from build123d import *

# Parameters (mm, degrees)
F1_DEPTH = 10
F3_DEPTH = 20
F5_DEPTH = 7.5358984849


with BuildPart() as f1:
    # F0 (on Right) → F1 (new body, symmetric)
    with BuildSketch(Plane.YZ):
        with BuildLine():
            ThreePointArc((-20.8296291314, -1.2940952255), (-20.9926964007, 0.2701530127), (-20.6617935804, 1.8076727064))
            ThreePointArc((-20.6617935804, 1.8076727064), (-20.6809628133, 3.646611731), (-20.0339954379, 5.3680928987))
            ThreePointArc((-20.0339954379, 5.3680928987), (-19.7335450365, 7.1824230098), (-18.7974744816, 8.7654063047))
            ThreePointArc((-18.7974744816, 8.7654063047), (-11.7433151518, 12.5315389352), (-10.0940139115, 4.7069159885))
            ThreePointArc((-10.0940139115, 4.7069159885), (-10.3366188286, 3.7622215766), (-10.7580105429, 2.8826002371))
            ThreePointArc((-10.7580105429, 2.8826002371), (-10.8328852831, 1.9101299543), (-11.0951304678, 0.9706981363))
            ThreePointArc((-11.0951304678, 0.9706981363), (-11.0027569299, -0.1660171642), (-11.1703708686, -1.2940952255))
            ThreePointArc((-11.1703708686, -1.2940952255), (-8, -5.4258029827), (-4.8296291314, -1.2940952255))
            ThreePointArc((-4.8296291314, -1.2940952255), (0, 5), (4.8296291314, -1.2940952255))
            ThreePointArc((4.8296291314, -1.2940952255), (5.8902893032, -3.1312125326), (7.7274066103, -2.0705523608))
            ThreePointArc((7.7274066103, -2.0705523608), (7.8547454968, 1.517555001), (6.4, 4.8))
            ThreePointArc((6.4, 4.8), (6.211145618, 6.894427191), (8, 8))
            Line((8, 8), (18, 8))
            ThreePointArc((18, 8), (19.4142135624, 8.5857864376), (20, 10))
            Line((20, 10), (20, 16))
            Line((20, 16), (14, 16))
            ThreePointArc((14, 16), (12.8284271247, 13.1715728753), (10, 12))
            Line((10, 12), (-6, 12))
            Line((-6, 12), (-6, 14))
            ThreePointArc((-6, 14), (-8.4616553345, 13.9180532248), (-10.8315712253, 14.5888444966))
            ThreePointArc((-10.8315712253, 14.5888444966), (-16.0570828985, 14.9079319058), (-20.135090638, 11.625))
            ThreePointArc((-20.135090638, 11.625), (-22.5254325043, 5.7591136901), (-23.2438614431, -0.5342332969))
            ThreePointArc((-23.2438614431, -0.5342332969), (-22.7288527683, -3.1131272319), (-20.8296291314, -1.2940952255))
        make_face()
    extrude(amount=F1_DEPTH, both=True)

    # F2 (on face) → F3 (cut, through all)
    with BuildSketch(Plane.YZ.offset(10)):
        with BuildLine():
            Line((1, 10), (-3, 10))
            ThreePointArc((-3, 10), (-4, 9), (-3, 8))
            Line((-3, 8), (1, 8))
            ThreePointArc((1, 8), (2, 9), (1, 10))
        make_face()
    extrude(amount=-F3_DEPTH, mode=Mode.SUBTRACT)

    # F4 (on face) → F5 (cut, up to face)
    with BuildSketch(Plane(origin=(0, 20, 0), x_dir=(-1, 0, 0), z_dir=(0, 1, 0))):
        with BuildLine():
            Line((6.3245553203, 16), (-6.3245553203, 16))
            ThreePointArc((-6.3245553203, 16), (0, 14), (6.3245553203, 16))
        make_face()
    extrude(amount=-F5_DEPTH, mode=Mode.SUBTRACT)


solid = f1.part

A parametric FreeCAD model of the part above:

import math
import FreeCAD as App
import Part
import Sketcher
from FreeCAD import Vector
Q = App.Units.Quantity

doc = App.newDocument("Part")
body = doc.addObject("PartDesign::Body", "Body")

# Sketch on YZ plane
sketch1 = body.newObject("Sketcher::SketchObject", "Sketch")
sketch1.AttachmentSupport = (doc.getObject("YZ_Plane"), [""])
sketch1.MapMode = "FlatFace"
sketch1.addGeometry([
    Part.ArcOfCircle(Part.Circle(Vector(-16, 0, 0), Vector(0, 0, 1), 5), math.radians(158.805533), math.radians(195)),  # 0
    Part.ArcOfCircle(Part.Circle(Vector(-15.756924, 2.778371, 0), Vector(0, 0, 1), 5), math.radians(148.805533), math.radians(191.194467)),  # 1
    Part.ArcOfCircle(Part.Circle(Vector(-15.035082, 5.472322, 0), Vector(0, 0, 1), 5), math.radians(138.805533), math.radians(181.194467)),  # 2
    Part.ArcOfCircle(Part.Circle(Vector(-13.856406, 8, 0), Vector(0, 0, 1), 5), math.radians(-41.194467), math.radians(171.194467)),  # 3
    Part.ArcOfCircle(Part.Circle(Vector(-15.035082, 5.472322, 0), Vector(0, 0, 1), 5), math.radians(-31.194467), math.radians(-8.805533)),  # 4
    Part.ArcOfCircle(Part.Circle(Vector(-15.756924, 2.778371, 0), Vector(0, 0, 1), 5), math.radians(-21.194467), math.radians(1.194467)),  # 5
    Part.ArcOfCircle(Part.Circle(Vector(-16, 0, 0), Vector(0, 0, 1), 5), math.radians(-15), math.radians(11.194467)),  # 6
    Part.ArcOfCircle(Part.Circle(Vector(-8, -2.143594, 0), Vector(0, 0, 1), 3.282209), math.radians(165), math.radians(375)),  # 7
    Part.ArcOfCircle(Part.Circle(Vector(0, 0, 0), Vector(0, 0, 1), 5), math.radians(-15), math.radians(195)),  # 8
    Part.ArcOfCircle(Part.Circle(Vector(6.278518, -1.682324, 0), Vector(0, 0, 1), 1.5), math.radians(165), math.radians(345)),  # 9
    Part.ArcOfCircle(Part.Circle(Vector(0, 0, 0), Vector(0, 0, 1), 8), math.radians(-15), math.radians(36.869898)),  # 10
    Part.ArcOfCircle(Part.Circle(Vector(8, 6, 0), Vector(0, 0, 1), 2), math.radians(90), math.radians(216.869898)),  # 11
    Part.LineSegment(Vector(8, 8, 0), Vector(18, 8, 0)),  # 12
    Part.ArcOfCircle(Part.Circle(Vector(18, 10, 0), Vector(0, 0, 1), 2), math.radians(-90), math.radians(0)),  # 13
    Part.LineSegment(Vector(20, 10, 0), Vector(20, 16, 0)),  # 14
    Part.LineSegment(Vector(20, 16, 0), Vector(14, 16, 0)),  # 15
    Part.ArcOfCircle(Part.Circle(Vector(10, 16, 0), Vector(0, 0, 1), 4), math.radians(-90), math.radians(0)),  # 16
    Part.LineSegment(Vector(10, 12, 0), Vector(-6, 12, 0)),  # 17
    Part.LineSegment(Vector(-6, 12, 0), Vector(-6, 14, 0)),  # 18
    Part.ArcOfCircle(Part.Circle(Vector(-7.493822, 21.859294, 0), Vector(0, 0, 1), 8), math.radians(-114.659114), math.radians(-79.238119)),  # 19
    Part.ArcOfCircle(Part.Circle(Vector(-13.856406, 8, 0), Vector(0, 0, 1), 7.25), math.radians(65.340886), math.radians(150)),  # 20
    Part.ArcOfCircle(Part.Circle(Vector(0, 0, 0), Vector(0, 0, 1), 23.25), math.radians(150), math.radians(181.316645)),  # 21
    Part.ArcOfCircle(Part.Circle(Vector(-22.278518, -1.682324, 0), Vector(0, 0, 1), 1.5), math.radians(130.057973), math.radians(375)),  # 22
], False)
sketch1.addConstraint([
    Sketcher.Constraint("Coincident", 0, 1, 1, 2),
    Sketcher.Constraint("Coincident", 1, 1, 2, 2),
    Sketcher.Constraint("Coincident", 2, 1, 3, 2),
    Sketcher.Constraint("Coincident", 3, 1, 4, 2),
    Sketcher.Constraint("Coincident", 4, 1, 5, 2),
    Sketcher.Constraint("Coincident", 5, 1, 6, 2),
    Sketcher.Constraint("Tangent", 6, 1, 7, 1),
    Sketcher.Constraint("Tangent", 7, 2, 8, 2),
    Sketcher.Constraint("Tangent", 8, 1, 9, 1),
    Sketcher.Constraint("Tangent", 9, 2, 10, 1),
    Sketcher.Constraint("Tangent", 10, 2, 11, 2),
    Sketcher.Constraint("Tangent", 11, 1, 12, 1),
    Sketcher.Constraint("Tangent", 12, 2, 13, 1),
    Sketcher.Constraint("Tangent", 13, 2, 14, 1),
    Sketcher.Constraint("Coincident", 14, 2, 15, 1),
    Sketcher.Constraint("Coincident", 15, 2, 16, 2),
    Sketcher.Constraint("Tangent", 16, 1, 17, 1),
    Sketcher.Constraint("Coincident", 17, 2, 18, 1),
    Sketcher.Constraint("Coincident", 18, 2, 19, 2),
    Sketcher.Constraint("Tangent", 19, 1, 20, 1),
    Sketcher.Constraint("Tangent", 20, 2, 21, 1),
    Sketcher.Constraint("Coincident", 21, 2, 22, 1),
    Sketcher.Constraint("Tangent", 22, 2, 0, 2),
    Sketcher.Constraint("Horizontal", 12),
    Sketcher.Constraint("Vertical", 14),
    Sketcher.Constraint("Horizontal", 15),
    Sketcher.Constraint("Horizontal", 17),
    Sketcher.Constraint("Vertical", 18),
    Sketcher.Constraint("Coincident", 8, 3, -1, 1),
    Sketcher.Constraint("Coincident", 10, 3, -1, 1),
    Sketcher.Constraint("Coincident", 21, 3, -1, 1),
    Sketcher.Constraint("Coincident", 4, 3, 2, 3),
    Sketcher.Constraint("Coincident", 5, 3, 1, 3),
    Sketcher.Constraint("Coincident", 6, 3, 0, 3),
    Sketcher.Constraint("Coincident", 20, 3, 3, 3),
    Sketcher.Constraint("Equal", 0, 1),
    Sketcher.Constraint("Equal", 1, 2),
    Sketcher.Constraint("Equal", 2, 3),
    Sketcher.Constraint("Equal", 3, 4),
    Sketcher.Constraint("Equal", 4, 5),
    Sketcher.Constraint("Equal", 5, 6),
    Sketcher.Constraint("Equal", 6, 8),
    Sketcher.Constraint("Equal", 11, 13),
    Sketcher.Constraint("Equal", 10, 19),
    Sketcher.Constraint("Equal", 9, 22),
    Sketcher.Constraint("PointOnObject", 0, 3, -1),
    Sketcher.Constraint("Horizontal", 9, 3, 22, 3),
    Sketcher.Constraint("Horizontal", 7, 2, 8, 1),
    Sketcher.Constraint("Horizontal", 20, 3, 11, 1),
    Sketcher.Constraint("Horizontal", 16, 3, 14, 2),
    Sketcher.Constraint("Equal", 15, 14),
    Sketcher.Constraint("Radius", 0, Q("5 mm")),
    Sketcher.Constraint("Radius", 10, Q("8 mm")),
    Sketcher.Constraint("Radius", 11, Q("2 mm")),
    Sketcher.Constraint("Radius", 16, Q("4 mm")),
    Sketcher.Constraint("DistanceX", 12, 1, 12, 2, Q("10 mm")),
    Sketcher.Constraint("DistanceX", 15, 2, 15, 1, Q("6 mm")),
    Sketcher.Constraint("DistanceX", 17, 2, 17, 1, Q("16 mm")),
    Sketcher.Constraint("DistanceY", 18, 1, 18, 2, Q("2 mm")),
    Sketcher.Constraint("Radius", 20, Q("7.25 mm")),
    Sketcher.Constraint("Radius", 21, Q("23.25 mm")),
    Sketcher.Constraint("DistanceX", 0, 3, -1, 1, Q("16 mm")),
    Sketcher.Constraint("DistanceY", -1, 1, 3, 3, Q("8 mm")),
    Sketcher.Constraint("Radius", 7, Q("3.282209 mm")),
    Sketcher.Constraint("DistanceY", -1, 1, 4, 1, Q("2.8826 mm")),
    Sketcher.Constraint("DistanceY", -1, 1, 5, 1, Q("0.970698 mm")),
    Sketcher.Constraint("DistanceX", 0, 1, 1, 1, Q("0.627798 mm")),
    Sketcher.Constraint("DistanceY", -1, 1, 1, 3, Q("2.778371 mm")),
])
pad1 = body.newObject("PartDesign::Pad", "Pad")
pad1.Profile = sketch1
pad1.Length = 20
pad1.Midplane = True

# Sketch on YZ plane
sketch2 = body.newObject("Sketcher::SketchObject", "Sketch001")
sketch2.AttachmentSupport = (doc.getObject("YZ_Plane"), [""])
sketch2.MapMode = "FlatFace"
sketch2.AttachmentOffset = App.Placement(Vector(0, 0, 10), App.Rotation())
sketch2.addGeometry([
    Part.LineSegment(Vector(1, 10, 0), Vector(-3, 10, 0)),
    Part.ArcOfCircle(Part.Circle(Vector(-3, 9, 0), Vector(0, 0, 1), 1), math.radians(90), math.radians(270)),
    Part.LineSegment(Vector(-3, 8, 0), Vector(1, 8, 0)),
    Part.ArcOfCircle(Part.Circle(Vector(1, 9, 0), Vector(0, 0, 1), 1), math.radians(-90), math.radians(90)),
], False)
sketch2.addConstraint([
    Sketcher.Constraint("Tangent", 0, 2, 1, 1),
    Sketcher.Constraint("Tangent", 1, 2, 2, 1),
    Sketcher.Constraint("Tangent", 2, 2, 3, 1),
    Sketcher.Constraint("Tangent", 3, 2, 0, 1),
    Sketcher.Constraint("Horizontal", 0),
    Sketcher.Constraint("Horizontal", 2),
    Sketcher.Constraint("Radius", 1, Q("1 mm")),
    Sketcher.Constraint("DistanceX", 0, 2, 0, 1, Q("4 mm")),
    Sketcher.Constraint("DistanceX", 1, 3, -1, 1, Q("3 mm")),
    Sketcher.Constraint("DistanceY", -1, 1, 1, 3, Q("9 mm")),
])
pocket1 = body.newObject("PartDesign::Pocket", "Pocket")
pocket1.Profile = sketch2
pocket1.Type = "ThroughAll"

# Sketch on XZ plane
sketch3 = body.newObject("Sketcher::SketchObject", "Sketch002")
sketch3.AttachmentSupport = (doc.getObject("XZ_Plane"), [""])
sketch3.MapMode = "FlatFace"
sketch3.AttachmentOffset = App.Placement(Vector(0, 0, -20), App.Rotation())
sketch3.addGeometry([
    Part.LineSegment(Vector(-6.324555, 16, 0), Vector(6.324555, 16, 0)),
    Part.ArcOfCircle(Part.Circle(Vector(0, 25, 0), Vector(0, 0, 1), 11), math.radians(-125.096801), math.radians(-54.903199)),
], False)
sketch3.addConstraint([
    Sketcher.Constraint("Coincident", 0, 1, 1, 1),
    Sketcher.Constraint("Coincident", 1, 2, 0, 2),
    Sketcher.Constraint("Horizontal", 0),
    Sketcher.Constraint("PointOnObject", 1, 3, -2),
    Sketcher.Constraint("Radius", 1, Q("11 mm")),
    Sketcher.Constraint("DistanceY", -1, 1, 1, 3, Q("25 mm")),
    Sketcher.Constraint("DistanceY", -1, 1, 0, 1, Q("16 mm")),
])
pocket2 = body.newObject("PartDesign::Pocket", "Pocket001")
pocket2.Profile = sketch3
pocket2.Length = 7.535898
pocket2.Reversed = True

doc.recompute()
